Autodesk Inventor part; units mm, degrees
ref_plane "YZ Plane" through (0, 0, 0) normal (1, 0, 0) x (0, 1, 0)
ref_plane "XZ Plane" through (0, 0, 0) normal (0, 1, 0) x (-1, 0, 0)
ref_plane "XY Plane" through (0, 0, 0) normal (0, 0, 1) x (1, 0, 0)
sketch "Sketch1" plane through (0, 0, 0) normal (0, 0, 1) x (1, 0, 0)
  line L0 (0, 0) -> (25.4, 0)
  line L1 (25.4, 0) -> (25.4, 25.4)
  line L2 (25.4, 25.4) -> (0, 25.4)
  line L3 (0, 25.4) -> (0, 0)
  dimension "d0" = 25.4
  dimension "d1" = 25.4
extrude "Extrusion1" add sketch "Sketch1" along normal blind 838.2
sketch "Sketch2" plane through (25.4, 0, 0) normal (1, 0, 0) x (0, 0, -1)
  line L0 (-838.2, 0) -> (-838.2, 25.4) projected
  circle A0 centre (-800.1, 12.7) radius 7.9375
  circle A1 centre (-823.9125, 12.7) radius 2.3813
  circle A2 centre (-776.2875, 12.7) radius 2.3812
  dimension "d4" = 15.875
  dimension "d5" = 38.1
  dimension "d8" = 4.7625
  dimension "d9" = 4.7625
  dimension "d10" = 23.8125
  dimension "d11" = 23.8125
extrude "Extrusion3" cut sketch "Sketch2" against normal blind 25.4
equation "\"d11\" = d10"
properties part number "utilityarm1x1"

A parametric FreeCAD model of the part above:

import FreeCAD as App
import Part
import Sketcher
Q = App.Units.Quantity

doc = App.newDocument("Part")
params = doc.addObject("Spreadsheet::Sheet", "Params")
for row, (alias, value) in enumerate([
    ("sketch1_width", "1 in"),
    ("pad1_length", "33 in"),
    ("sketch2_diameter", "0.625 in"),
    ("sketch2_diameter2", "0.1875 in"),
    ("pocket1_length", "1 in"),
], start=1):
    params.set(f"A{row}", alias)
    params.set(f"B{row}", "=" + value)
    params.setAlias(f"B{row}", alias)

body = doc.addObject("PartDesign::Body", "Body")

# Sketch on XY plane
sketch1 = doc.addObject("Sketcher::SketchObject", "Sketch")
body.addObject(sketch1)
sketch1.AttachmentSupport = (doc.XY_Plane, [""])
sketch1.MapMode = "FlatFace"
sketch1.addGeometry([
    Part.LineSegment(App.Vector(0, 25, 0), App.Vector(0, 0, 0)),
    Part.LineSegment(App.Vector(0, 0, 0), App.Vector(25, 0, 0)),
    Part.LineSegment(App.Vector(25, 0, 0), App.Vector(25, 25, 0)),
    Part.LineSegment(App.Vector(25, 25, 0), App.Vector(0, 25, 0)),
], False)
sketch1.addConstraint([
    Sketcher.Constraint("Coincident", 0, 2, 1, 1),
    Sketcher.Constraint("Coincident", 1, 2, 2, 1),
    Sketcher.Constraint("Coincident", 2, 2, 3, 1),
    Sketcher.Constraint("Coincident", 3, 2, 0, 1),
    Sketcher.Constraint("Vertical", 0),
    Sketcher.Constraint("Horizontal", 1),
    Sketcher.Constraint("Vertical", 2),
    Sketcher.Constraint("Horizontal", 3),
    Sketcher.Constraint("Coincident", 0, 2, -1, 1),
    Sketcher.Constraint("Equal", 3, 0),
    Sketcher.Constraint("DistanceX", 1, 1, 1, 2, Q("1 in")),
])
sketch1.setExpression("Constraints[10]", "Params.sketch1_width")
pad1 = doc.addObject("PartDesign::Pad", "Pad")
body.addObject(pad1)
pad1.Profile = sketch1
pad1.setExpression("Length", "Params.pad1_length")

# Sketch on YZ plane
sketch2 = doc.addObject("Sketcher::SketchObject", "Sketch001")
body.addObject(sketch2)
sketch2.AttachmentSupport = (doc.YZ_Plane, [""])
sketch2.MapMode = "FlatFace"
sketch2.AttachmentOffset = App.Placement(App.Vector(0, 0, 1 * 25.4), App.Rotation())
sketch2.addGeometry([
    Part.Circle(App.Vector(12.7, 800.1, 0), App.Vector(0, 0, 1), 7.9),
    Part.Circle(App.Vector(12.7, 823.9, 0), App.Vector(0, 0, 1), 2.4),
    Part.Circle(App.Vector(12.7, 776.3, 0), App.Vector(0, 0, 1), 2.4),
], False)
sketch2.addConstraint([
    Sketcher.Constraint("Equal", 1, 2),
    Sketcher.Constraint("Vertical", 0, 3, 1, 3),
    Sketcher.Constraint("Vertical", 1, 3, 2, 3),
    Sketcher.Constraint("Diameter", 0, Q("0.625 in")),
    Sketcher.Constraint("Diameter", 1, Q("0.1875 in")),
    Sketcher.Constraint("DistanceY", 0, 3, 1, 3, Q("0.9375 in")),
    Sketcher.Constraint("DistanceY", 2, 3, 0, 3, Q("0.9375 in")),
    Sketcher.Constraint("DistanceX", -1, 1, 0, 3, Q("0.5 in")),
    Sketcher.Constraint("DistanceY", -1, 1, 0, 3, Q("31.5 in")),
])
sketch2.setExpression("Constraints[3]", "Params.sketch2_diameter")
sketch2.setExpression("Constraints[4]", "Params.sketch2_diameter2")
pocket1 = doc.addObject("PartDesign::Pocket", "Pocket")
body.addObject(pocket1)
pocket1.Profile = sketch2
pocket1.setExpression("Length", "Params.pocket1_length")

doc.recompute()
